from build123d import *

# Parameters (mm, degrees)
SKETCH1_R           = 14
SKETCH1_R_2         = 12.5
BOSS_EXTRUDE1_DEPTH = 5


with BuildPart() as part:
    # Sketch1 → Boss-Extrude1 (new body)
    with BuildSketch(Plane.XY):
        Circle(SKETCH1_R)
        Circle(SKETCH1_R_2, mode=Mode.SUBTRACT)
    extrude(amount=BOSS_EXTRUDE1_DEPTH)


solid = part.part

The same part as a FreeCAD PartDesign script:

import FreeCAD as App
import Part
import Sketcher

doc = App.newDocument("Part")
params = doc.addObject("Spreadsheet::Sheet", "Params")
for row, (alias, value) in enumerate([
    ("sketch1_diameter", "28 mm"),
    ("sketch1_diameter2", "25 mm"),
    ("pad1_length", "5 mm"),
], start=1):
    params.set(f"A{row}", alias)
    params.set(f"B{row}", "=" + value)
    params.setAlias(f"B{row}", alias)

body = doc.addObject("PartDesign::Body", "Body")

# Sketch on XY plane
sketch1 = body.newObject("Sketcher::SketchObject", "Sketch")
sketch1.AttachmentSupport = (doc.getObject("XY_Plane"), [""])
sketch1.MapMode = "FlatFace"
sketch1.addGeometry(Part.Circle(App.Vector(0, 0, 0), App.Vector(0, 0, 1), 14), False)
sketch1.addGeometry(Part.Circle(App.Vector(0, 0, 0), App.Vector(0, 0, 1), 12.5), False)
sketch1.addConstraint(Sketcher.Constraint("Coincident", 0, 3, -1, 1))
sketch1.addConstraint(Sketcher.Constraint("Coincident", 1, 3, -1, 1))
sketch1.addConstraint(Sketcher.Constraint("Diameter", 0, 28.0))
sketch1.addConstraint(Sketcher.Constraint("Diameter", 1, 25.0))
sketch1.setExpression("Constraints[2]", "Params.sketch1_diameter")
sketch1.setExpression("Constraints[3]", "Params.sketch1_diameter2")
pad1 = body.newObject("PartDesign::Pad", "Pad")
pad1.Profile = sketch1
pad1.setExpression("Length", "Params.pad1_length")

doc.recompute()
